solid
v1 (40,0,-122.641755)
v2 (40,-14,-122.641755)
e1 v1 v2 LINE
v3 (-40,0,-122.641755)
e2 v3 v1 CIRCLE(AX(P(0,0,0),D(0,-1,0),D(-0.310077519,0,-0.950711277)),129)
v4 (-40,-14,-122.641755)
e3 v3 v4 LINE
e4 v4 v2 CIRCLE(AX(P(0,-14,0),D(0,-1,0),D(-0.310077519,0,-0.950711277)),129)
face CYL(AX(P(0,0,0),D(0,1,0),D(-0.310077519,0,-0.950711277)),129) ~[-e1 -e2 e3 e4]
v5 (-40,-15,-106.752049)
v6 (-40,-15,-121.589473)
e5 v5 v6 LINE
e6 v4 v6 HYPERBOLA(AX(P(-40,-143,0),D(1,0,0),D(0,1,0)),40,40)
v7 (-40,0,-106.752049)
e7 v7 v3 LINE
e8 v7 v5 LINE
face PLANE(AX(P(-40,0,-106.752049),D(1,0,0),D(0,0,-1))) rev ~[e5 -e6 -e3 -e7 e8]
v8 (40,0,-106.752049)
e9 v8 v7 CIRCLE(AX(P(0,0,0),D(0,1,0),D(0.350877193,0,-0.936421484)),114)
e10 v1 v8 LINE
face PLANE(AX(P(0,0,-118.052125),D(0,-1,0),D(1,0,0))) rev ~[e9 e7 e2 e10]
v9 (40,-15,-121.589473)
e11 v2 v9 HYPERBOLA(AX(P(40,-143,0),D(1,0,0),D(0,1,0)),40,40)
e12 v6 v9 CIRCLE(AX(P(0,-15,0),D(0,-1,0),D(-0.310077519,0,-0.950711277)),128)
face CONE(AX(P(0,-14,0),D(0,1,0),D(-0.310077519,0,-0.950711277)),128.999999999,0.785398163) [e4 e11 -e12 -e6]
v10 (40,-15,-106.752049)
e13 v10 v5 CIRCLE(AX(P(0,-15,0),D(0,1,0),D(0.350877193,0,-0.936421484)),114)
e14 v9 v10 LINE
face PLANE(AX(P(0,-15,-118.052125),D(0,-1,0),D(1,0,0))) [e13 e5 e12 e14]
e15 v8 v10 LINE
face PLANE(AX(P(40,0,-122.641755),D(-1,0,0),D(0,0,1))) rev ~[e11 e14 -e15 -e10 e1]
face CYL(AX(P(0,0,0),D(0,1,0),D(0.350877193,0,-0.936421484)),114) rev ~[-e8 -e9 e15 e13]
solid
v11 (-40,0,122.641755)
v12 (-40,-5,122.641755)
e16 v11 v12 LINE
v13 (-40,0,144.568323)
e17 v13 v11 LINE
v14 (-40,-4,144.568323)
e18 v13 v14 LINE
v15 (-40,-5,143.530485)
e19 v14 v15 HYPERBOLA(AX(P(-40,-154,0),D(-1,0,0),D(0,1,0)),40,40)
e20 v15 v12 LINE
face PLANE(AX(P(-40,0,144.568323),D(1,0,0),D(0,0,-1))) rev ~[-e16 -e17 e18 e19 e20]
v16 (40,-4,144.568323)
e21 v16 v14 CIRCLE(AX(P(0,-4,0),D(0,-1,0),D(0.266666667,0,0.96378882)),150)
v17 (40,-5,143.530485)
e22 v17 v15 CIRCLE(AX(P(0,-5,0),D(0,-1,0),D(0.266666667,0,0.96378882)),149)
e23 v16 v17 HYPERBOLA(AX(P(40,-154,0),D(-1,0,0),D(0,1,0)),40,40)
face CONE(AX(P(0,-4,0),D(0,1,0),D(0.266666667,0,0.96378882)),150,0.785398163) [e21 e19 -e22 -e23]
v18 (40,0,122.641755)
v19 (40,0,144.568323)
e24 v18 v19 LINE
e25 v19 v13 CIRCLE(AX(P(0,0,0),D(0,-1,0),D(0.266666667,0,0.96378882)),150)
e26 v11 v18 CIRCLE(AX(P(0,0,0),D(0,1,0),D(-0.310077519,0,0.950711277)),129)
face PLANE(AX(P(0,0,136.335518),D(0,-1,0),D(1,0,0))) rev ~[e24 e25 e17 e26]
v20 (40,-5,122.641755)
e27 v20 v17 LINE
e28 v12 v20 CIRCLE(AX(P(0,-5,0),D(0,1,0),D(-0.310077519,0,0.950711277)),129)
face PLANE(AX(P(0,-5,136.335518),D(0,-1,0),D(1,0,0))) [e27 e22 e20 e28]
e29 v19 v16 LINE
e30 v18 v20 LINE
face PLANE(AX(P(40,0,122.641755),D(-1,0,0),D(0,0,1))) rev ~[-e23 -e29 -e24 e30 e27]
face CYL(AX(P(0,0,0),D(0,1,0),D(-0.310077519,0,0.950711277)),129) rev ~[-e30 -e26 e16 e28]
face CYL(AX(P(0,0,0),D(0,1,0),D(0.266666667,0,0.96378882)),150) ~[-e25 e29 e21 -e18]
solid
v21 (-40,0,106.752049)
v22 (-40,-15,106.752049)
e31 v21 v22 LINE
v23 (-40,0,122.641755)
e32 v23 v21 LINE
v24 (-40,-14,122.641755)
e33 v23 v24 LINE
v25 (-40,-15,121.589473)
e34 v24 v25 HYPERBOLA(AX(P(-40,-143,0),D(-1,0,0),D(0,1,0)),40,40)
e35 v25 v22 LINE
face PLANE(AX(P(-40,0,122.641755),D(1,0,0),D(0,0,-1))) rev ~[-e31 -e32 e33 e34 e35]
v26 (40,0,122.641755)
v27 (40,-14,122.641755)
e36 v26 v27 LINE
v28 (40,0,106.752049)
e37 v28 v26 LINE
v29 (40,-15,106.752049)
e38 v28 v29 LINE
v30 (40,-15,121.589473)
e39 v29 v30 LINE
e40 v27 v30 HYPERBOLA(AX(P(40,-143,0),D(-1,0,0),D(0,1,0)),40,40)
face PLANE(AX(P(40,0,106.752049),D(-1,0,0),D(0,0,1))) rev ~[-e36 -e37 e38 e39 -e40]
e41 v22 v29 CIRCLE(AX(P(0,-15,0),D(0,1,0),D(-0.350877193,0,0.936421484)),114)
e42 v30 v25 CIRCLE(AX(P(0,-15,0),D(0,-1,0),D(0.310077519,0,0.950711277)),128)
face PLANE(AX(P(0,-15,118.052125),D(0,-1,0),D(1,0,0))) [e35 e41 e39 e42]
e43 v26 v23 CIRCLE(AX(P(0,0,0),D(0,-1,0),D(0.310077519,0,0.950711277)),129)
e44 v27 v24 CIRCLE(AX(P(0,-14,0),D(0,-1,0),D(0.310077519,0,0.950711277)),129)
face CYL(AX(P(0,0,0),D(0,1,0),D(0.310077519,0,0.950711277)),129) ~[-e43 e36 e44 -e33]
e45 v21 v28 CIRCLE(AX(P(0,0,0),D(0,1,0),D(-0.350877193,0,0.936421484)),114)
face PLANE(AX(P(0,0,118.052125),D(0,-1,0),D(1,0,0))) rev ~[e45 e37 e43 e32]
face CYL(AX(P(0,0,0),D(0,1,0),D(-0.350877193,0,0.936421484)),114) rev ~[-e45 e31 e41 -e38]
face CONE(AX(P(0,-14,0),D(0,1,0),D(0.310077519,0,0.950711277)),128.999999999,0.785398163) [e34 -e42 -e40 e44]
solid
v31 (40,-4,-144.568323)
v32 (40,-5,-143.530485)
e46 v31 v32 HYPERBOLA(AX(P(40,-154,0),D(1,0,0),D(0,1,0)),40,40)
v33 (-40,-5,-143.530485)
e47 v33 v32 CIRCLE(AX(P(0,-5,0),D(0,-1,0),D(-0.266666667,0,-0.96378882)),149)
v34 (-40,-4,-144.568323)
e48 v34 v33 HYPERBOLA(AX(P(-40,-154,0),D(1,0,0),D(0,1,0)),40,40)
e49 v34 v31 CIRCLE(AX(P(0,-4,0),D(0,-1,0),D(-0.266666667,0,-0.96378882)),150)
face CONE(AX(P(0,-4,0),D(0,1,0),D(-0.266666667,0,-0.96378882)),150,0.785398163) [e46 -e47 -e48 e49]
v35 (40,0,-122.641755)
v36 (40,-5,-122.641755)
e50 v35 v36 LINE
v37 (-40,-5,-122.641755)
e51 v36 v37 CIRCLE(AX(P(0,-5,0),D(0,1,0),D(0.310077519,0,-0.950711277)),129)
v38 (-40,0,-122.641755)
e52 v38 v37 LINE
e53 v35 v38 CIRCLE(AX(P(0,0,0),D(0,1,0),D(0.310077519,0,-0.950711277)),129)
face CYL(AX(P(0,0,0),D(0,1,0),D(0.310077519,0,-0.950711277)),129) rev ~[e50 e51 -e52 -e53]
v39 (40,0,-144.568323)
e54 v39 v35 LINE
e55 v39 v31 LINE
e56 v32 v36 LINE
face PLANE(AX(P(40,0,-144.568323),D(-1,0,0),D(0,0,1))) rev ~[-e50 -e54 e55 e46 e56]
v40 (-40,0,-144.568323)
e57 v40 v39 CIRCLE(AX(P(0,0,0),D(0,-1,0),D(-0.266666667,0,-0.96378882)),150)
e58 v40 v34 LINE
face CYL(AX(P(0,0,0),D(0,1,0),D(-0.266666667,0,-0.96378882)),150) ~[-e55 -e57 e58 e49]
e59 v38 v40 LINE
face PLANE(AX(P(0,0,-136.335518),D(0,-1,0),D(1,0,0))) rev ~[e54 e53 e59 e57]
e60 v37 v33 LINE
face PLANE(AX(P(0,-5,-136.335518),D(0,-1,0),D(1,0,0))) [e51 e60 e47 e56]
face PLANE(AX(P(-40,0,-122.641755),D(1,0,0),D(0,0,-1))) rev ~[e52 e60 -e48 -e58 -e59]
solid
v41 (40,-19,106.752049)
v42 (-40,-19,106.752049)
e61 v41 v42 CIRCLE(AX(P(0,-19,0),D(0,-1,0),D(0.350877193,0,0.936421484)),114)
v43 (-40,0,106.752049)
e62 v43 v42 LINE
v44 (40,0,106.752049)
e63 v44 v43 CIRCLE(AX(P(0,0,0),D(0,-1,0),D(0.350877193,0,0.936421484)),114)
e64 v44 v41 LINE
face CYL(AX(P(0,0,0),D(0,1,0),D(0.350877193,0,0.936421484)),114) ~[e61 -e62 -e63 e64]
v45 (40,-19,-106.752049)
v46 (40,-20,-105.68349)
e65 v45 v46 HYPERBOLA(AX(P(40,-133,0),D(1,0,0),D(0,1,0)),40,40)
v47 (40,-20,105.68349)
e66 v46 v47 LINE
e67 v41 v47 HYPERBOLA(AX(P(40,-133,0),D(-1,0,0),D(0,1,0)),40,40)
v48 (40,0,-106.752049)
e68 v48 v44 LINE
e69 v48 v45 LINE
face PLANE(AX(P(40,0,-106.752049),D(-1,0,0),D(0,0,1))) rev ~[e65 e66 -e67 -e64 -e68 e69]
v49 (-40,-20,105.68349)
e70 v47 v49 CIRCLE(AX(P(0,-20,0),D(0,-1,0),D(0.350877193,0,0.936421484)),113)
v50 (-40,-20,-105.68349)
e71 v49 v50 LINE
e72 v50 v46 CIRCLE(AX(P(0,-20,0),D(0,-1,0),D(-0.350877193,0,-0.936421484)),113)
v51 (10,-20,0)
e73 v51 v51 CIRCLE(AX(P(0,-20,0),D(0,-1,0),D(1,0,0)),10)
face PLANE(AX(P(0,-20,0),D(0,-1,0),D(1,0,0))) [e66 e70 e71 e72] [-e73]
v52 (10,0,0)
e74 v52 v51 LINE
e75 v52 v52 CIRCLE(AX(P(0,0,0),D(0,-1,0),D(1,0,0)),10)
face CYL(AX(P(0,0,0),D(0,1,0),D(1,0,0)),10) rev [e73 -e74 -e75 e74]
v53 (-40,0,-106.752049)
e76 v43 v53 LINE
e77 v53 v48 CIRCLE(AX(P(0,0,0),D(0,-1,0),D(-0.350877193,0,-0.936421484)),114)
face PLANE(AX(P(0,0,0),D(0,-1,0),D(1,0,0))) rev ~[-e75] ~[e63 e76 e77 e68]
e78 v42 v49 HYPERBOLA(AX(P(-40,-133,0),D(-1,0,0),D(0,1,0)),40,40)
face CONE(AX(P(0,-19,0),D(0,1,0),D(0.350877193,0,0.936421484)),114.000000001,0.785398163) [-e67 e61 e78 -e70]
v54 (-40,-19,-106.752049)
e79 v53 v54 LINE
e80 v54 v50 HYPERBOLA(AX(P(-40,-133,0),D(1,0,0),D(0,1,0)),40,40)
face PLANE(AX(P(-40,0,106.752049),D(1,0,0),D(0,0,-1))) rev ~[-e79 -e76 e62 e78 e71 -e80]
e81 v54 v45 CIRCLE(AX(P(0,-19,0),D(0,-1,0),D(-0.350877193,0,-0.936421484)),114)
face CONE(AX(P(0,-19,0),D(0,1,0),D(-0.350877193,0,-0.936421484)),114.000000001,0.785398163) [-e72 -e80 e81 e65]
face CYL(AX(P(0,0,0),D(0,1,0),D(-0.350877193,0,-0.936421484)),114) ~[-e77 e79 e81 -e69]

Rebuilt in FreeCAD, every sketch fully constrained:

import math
import FreeCAD as App
import Part
import Sketcher
from FreeCAD import Vector


def edges_at(feature, points):
    """Names of the edges that pass closest to the given points."""
    edges = feature.Shape.Edges
    near = lambda p: min(range(len(edges)), key=lambda i: edges[i].distToShape(Part.Vertex(*p))[0])
    return sorted({f"Edge{near(p) + 1}" for p in points})

doc = App.newDocument("Part")
body = doc.addObject("PartDesign::Body", "Body")

# Sketch on XZ plane
sketch1 = doc.addObject("Sketcher::SketchObject", "Sketch")
body.addObject(sketch1)
sketch1.AttachmentSupport = (doc.XZ_Plane, [""])
sketch1.MapMode = "FlatFace"
sketch1.addGeometry(Part.LineSegment(Vector(40, 123, 0), Vector(40, 145, 0)), False)
sketch1.addGeometry(Part.ArcOfCircle(Part.Circle(Vector(0, 0, 0), Vector(0, 0, 1), 150), math.radians(75), math.radians(105)), False)
sketch1.addGeometry(Part.LineSegment(Vector(-40, 145, 0), Vector(-40, 123, 0)), False)
sketch1.addGeometry(Part.ArcOfCircle(Part.Circle(Vector(0, 0, 0), Vector(0, 0, 1), 129), math.radians(72), math.radians(108)), False)
sketch1.addConstraint(Sketcher.Constraint("Coincident", 0, 2, 1, 1))
sketch1.addConstraint(Sketcher.Constraint("Coincident", 1, 2, 2, 1))
sketch1.addConstraint(Sketcher.Constraint("Coincident", 2, 2, 3, 2))
sketch1.addConstraint(Sketcher.Constraint("Coincident", 3, 1, 0, 1))
sketch1.addConstraint(Sketcher.Constraint("Vertical", 0))
sketch1.addConstraint(Sketcher.Constraint("Vertical", 2))
sketch1.addConstraint(Sketcher.Constraint("Coincident", 1, 3, -1, 1))
sketch1.addConstraint(Sketcher.Constraint("Coincident", 3, 3, -1, 1))
sketch1.addConstraint(Sketcher.Constraint("Horizontal", 0, 2, 1, 2))
sketch1.addConstraint(Sketcher.Constraint("Radius", 1, 150.0))
sketch1.addConstraint(Sketcher.Constraint("Radius", 3, 129.0))
sketch1.addConstraint(Sketcher.Constraint("DistanceX", -1, 1, 0, 2, 40.0))
pad1 = doc.addObject("PartDesign::Pad", "Pad")
body.addObject(pad1)
pad1.Profile = sketch1
pad1.Length = 5

# Sketch on XZ plane
sketch2 = doc.addObject("Sketcher::SketchObject", "Sketch001")
body.addObject(sketch2)
sketch2.AttachmentSupport = (doc.XZ_Plane, [""])
sketch2.MapMode = "FlatFace"
sketch2.addGeometry(Part.Circle(Vector(0, 0, 0), Vector(0, 0, 1), 10), False)
sketch2.addConstraint(Sketcher.Constraint("Coincident", 0, 3, -1, 1))
sketch2.addConstraint(Sketcher.Constraint("Diameter", 0, 20.0))
pocket1 = doc.addObject("PartDesign::Pocket", "Pocket")
body.addObject(pocket1)
pocket1.Profile = sketch2
pocket1.Length = 25
pocket1.Reversed = True
doc.recompute()

chamfer = doc.addObject("PartDesign::Chamfer", "Chamfer")
body.addObject(chamfer)
chamfer.Base = (pocket1, edges_at(pocket1, [(0, -5, 150)]))
chamfer.Size = 1
body2 = doc.addObject("PartDesign::Body", "Body001")

# Sketch on XZ plane
sketch3 = doc.addObject("Sketcher::SketchObject", "Sketch002")
body2.addObject(sketch3)
sketch3.AttachmentSupport = (doc.getObject("XZ_Plane001"), [""])
sketch3.MapMode = "FlatFace"
sketch3.addGeometry(Part.ArcOfCircle(Part.Circle(Vector(0, 0, 0), Vector(0, 0, 1), 150), math.radians(-105), math.radians(-75)), False)
sketch3.addGeometry(Part.LineSegment(Vector(40, -145, 0), Vector(40, -123, 0)), False)
sketch3.addGeometry(Part.ArcOfCircle(Part.Circle(Vector(0, 0, 0), Vector(0, 0, 1), 129), math.radians(-108), math.radians(-72)), False)
sketch3.addGeometry(Part.LineSegment(Vector(-40, -123, 0), Vector(-40, -145, 0)), False)
sketch3.addConstraint(Sketcher.Constraint("Coincident", 0, 2, 1, 1))
sketch3.addConstraint(Sketcher.Constraint("Coincident", 1, 2, 2, 2))
sketch3.addConstraint(Sketcher.Constraint("Coincident", 2, 1, 3, 1))
sketch3.addConstraint(Sketcher.Constraint("Coincident", 3, 2, 0, 1))
sketch3.addConstraint(Sketcher.Constraint("Vertical", 1))
sketch3.addConstraint(Sketcher.Constraint("Vertical", 3))
sketch3.addConstraint(Sketcher.Constraint("Coincident", 0, 3, -1, 1))
sketch3.addConstraint(Sketcher.Constraint("Coincident", 2, 3, -1, 1))
sketch3.addConstraint(Sketcher.Constraint("Horizontal", 1, 2, 2, 1))
sketch3.addConstraint(Sketcher.Constraint("Radius", 0, 150.0))
sketch3.addConstraint(Sketcher.Constraint("Radius", 2, 129.0))
sketch3.addConstraint(Sketcher.Constraint("DistanceX", -1, 1, 0, 2, 40.0))
pad2 = doc.addObject("PartDesign::Pad", "Pad001")
body2.addObject(pad2)
pad2.Profile = sketch3
pad2.Length = 5
doc.recompute()

chamfer2 = doc.addObject("PartDesign::Chamfer", "Chamfer001")
body2.addObject(chamfer2)
chamfer2.Base = (pad2, edges_at(pad2, [(0, -5, -150)]))
chamfer2.Size = 1
body3 = doc.addObject("PartDesign::Body", "Body002")

# Sketch on XZ plane
sketch4 = doc.addObject("Sketcher::SketchObject", "Sketch003")
body3.addObject(sketch4)
sketch4.AttachmentSupport = (doc.getObject("XZ_Plane002"), [""])
sketch4.MapMode = "FlatFace"
sketch4.addGeometry(Part.ArcOfCircle(Part.Circle(Vector(0, 0, 0), Vector(0, 0, 1), 129), math.radians(-108), math.radians(-72)), False)
sketch4.addGeometry(Part.LineSegment(Vector(40, -123, 0), Vector(40, -107, 0)), False)
sketch4.addGeometry(Part.ArcOfCircle(Part.Circle(Vector(0, 0, 0), Vector(0, 0, 1), 114), math.radians(-111), math.radians(-69)), False)
sketch4.addGeometry(Part.LineSegment(Vector(-40, -107, 0), Vector(-40, -123, 0)), False)
sketch4.addConstraint(Sketcher.Constraint("Coincident", 0, 2, 1, 1))
sketch4.addConstraint(Sketcher.Constraint("Coincident", 1, 2, 2, 2))
sketch4.addConstraint(Sketcher.Constraint("Coincident", 2, 1, 3, 1))
sketch4.addConstraint(Sketcher.Constraint("Coincident", 3, 2, 0, 1))
sketch4.addConstraint(Sketcher.Constraint("Vertical", 1))
sketch4.addConstraint(Sketcher.Constraint("Vertical", 3))
sketch4.addConstraint(Sketcher.Constraint("Coincident", 0, 3, -1, 1))
sketch4.addConstraint(Sketcher.Constraint("Coincident", 2, 3, -1, 1))
sketch4.addConstraint(Sketcher.Constraint("Horizontal", 1, 2, 2, 1))
sketch4.addConstraint(Sketcher.Constraint("Radius", 0, 129.0))
sketch4.addConstraint(Sketcher.Constraint("Radius", 2, 114.0))
sketch4.addConstraint(Sketcher.Constraint("DistanceX", -1, 1, 0, 2, 40.0))
pad3 = doc.addObject("PartDesign::Pad", "Pad002")
body3.addObject(pad3)
pad3.Profile = sketch4
pad3.Length = 15
doc.recompute()

chamfer3 = doc.addObject("PartDesign::Chamfer", "Chamfer002")
body3.addObject(chamfer3)
chamfer3.Base = (pad3, edges_at(pad3, [(0, -15, -129)]))
chamfer3.Size = 1
body4 = doc.addObject("PartDesign::Body", "Body003")

# Sketch on XZ plane
sketch5 = doc.addObject("Sketcher::SketchObject", "Sketch004")
body4.addObject(sketch5)
sketch5.AttachmentSupport = (doc.getObject("XZ_Plane003"), [""])
sketch5.MapMode = "FlatFace"
sketch5.addGeometry(Part.LineSegment(Vector(40, 107, 0), Vector(40, 123, 0)), False)
sketch5.addGeometry(Part.ArcOfCircle(Part.Circle(Vector(0, 0, 0), Vector(0, 0, 1), 129), math.radians(72), math.radians(108)), False)
sketch5.addGeometry(Part.LineSegment(Vector(-40, 123, 0), Vector(-40, 107, 0)), False)
sketch5.addGeometry(Part.ArcOfCircle(Part.Circle(Vector(0, 0, 0), Vector(0, 0, 1), 114), math.radians(69), math.radians(111)), False)
sketch5.addConstraint(Sketcher.Constraint("Coincident", 0, 2, 1, 1))
sketch5.addConstraint(Sketcher.Constraint("Coincident", 1, 2, 2, 1))
sketch5.addConstraint(Sketcher.Constraint("Coincident", 2, 2, 3, 2))
sketch5.addConstraint(Sketcher.Constraint("Coincident", 3, 1, 0, 1))
sketch5.addConstraint(Sketcher.Constraint("Vertical", 0))
sketch5.addConstraint(Sketcher.Constraint("Vertical", 2))
sketch5.addConstraint(Sketcher.Constraint("Coincident", 1, 3, -1, 1))
sketch5.addConstraint(Sketcher.Constraint("Coincident", 3, 3, -1, 1))
sketch5.addConstraint(Sketcher.Constraint("Horizontal", 0, 2, 1, 2))
sketch5.addConstraint(Sketcher.Constraint("Radius", 1, 129.0))
sketch5.addConstraint(Sketcher.Constraint("Radius", 3, 114.0))
sketch5.addConstraint(Sketcher.Constraint("DistanceX", -1, 1, 0, 2, 40.0))
pad4 = doc.addObject("PartDesign::Pad", "Pad003")
body4.addObject(pad4)
pad4.Profile = sketch5
pad4.Length = 15
doc.recompute()

chamfer4 = doc.addObject("PartDesign::Chamfer", "Chamfer003")
body4.addObject(chamfer4)
chamfer4.Base = (pad4, edges_at(pad4, [(0, -15, 129)]))
chamfer4.Size = 1
body5 = doc.addObject("PartDesign::Body", "Body004")

# Sketch on XZ plane
sketch6 = doc.addObject("Sketcher::SketchObject", "Sketch005")
body5.addObject(sketch6)
sketch6.AttachmentSupport = (doc.getObject("XZ_Plane004"), [""])
sketch6.MapMode = "FlatFace"
sketch6.addGeometry(Part.LineSegment(Vector(40, -107, 0), Vector(40, 107, 0)), False)
sketch6.addGeometry(Part.ArcOfCircle(Part.Circle(Vector(0, 0, 0), Vector(0, 0, 1), 114), math.radians(69), math.radians(111)), False)
sketch6.addGeometry(Part.LineSegment(Vector(-40, 107, 0), Vector(-40, -107, 0)), False)
sketch6.addGeometry(Part.ArcOfCircle(Part.Circle(Vector(0, 0, 0), Vector(0, 0, 1), 114), math.radians(-111), math.radians(-69)), False)
sketch6.addGeometry(Part.Circle(Vector(0, 0, 0), Vector(0, 0, 1), 10), False)
sketch6.addConstraint(Sketcher.Constraint("Coincident", 0, 2, 1, 1))
sketch6.addConstraint(Sketcher.Constraint("Coincident", 1, 2, 2, 1))
sketch6.addConstraint(Sketcher.Constraint("Coincident", 2, 2, 3, 1))
sketch6.addConstraint(Sketcher.Constraint("Coincident", 3, 2, 0, 1))
sketch6.addConstraint(Sketcher.Constraint("Vertical", 0))
sketch6.addConstraint(Sketcher.Constraint("Vertical", 2))
sketch6.addConstraint(Sketcher.Constraint("Coincident", 1, 3, -1, 1))
sketch6.addConstraint(Sketcher.Constraint("Coincident", 3, 3, -1, 1))
sketch6.addConstraint(Sketcher.Constraint("Coincident", 4, 3, -1, 1))
sketch6.addConstraint(Sketcher.Constraint("Equal", 1, 3))
sketch6.addConstraint(Sketcher.Constraint("Horizontal", 0, 2, 1, 2))
sketch6.addConstraint(Sketcher.Constraint("Diameter", 4, 20.0))
sketch6.addConstraint(Sketcher.Constraint("Radius", 1, 114.0))
sketch6.addConstraint(Sketcher.Constraint("DistanceX", -1, 1, 0, 2, 40.0))
pad5 = doc.addObject("PartDesign::Pad", "Pad004")
body5.addObject(pad5)
pad5.Profile = sketch6
pad5.Length = 20
doc.recompute()

chamfer5 = doc.addObject("PartDesign::Chamfer", "Chamfer004")
body5.addObject(chamfer5)
chamfer5.Base = (pad5, edges_at(pad5, [(0, -20, 114), (0, -20, -114)]))
chamfer5.Size = 1

doc.recompute()
